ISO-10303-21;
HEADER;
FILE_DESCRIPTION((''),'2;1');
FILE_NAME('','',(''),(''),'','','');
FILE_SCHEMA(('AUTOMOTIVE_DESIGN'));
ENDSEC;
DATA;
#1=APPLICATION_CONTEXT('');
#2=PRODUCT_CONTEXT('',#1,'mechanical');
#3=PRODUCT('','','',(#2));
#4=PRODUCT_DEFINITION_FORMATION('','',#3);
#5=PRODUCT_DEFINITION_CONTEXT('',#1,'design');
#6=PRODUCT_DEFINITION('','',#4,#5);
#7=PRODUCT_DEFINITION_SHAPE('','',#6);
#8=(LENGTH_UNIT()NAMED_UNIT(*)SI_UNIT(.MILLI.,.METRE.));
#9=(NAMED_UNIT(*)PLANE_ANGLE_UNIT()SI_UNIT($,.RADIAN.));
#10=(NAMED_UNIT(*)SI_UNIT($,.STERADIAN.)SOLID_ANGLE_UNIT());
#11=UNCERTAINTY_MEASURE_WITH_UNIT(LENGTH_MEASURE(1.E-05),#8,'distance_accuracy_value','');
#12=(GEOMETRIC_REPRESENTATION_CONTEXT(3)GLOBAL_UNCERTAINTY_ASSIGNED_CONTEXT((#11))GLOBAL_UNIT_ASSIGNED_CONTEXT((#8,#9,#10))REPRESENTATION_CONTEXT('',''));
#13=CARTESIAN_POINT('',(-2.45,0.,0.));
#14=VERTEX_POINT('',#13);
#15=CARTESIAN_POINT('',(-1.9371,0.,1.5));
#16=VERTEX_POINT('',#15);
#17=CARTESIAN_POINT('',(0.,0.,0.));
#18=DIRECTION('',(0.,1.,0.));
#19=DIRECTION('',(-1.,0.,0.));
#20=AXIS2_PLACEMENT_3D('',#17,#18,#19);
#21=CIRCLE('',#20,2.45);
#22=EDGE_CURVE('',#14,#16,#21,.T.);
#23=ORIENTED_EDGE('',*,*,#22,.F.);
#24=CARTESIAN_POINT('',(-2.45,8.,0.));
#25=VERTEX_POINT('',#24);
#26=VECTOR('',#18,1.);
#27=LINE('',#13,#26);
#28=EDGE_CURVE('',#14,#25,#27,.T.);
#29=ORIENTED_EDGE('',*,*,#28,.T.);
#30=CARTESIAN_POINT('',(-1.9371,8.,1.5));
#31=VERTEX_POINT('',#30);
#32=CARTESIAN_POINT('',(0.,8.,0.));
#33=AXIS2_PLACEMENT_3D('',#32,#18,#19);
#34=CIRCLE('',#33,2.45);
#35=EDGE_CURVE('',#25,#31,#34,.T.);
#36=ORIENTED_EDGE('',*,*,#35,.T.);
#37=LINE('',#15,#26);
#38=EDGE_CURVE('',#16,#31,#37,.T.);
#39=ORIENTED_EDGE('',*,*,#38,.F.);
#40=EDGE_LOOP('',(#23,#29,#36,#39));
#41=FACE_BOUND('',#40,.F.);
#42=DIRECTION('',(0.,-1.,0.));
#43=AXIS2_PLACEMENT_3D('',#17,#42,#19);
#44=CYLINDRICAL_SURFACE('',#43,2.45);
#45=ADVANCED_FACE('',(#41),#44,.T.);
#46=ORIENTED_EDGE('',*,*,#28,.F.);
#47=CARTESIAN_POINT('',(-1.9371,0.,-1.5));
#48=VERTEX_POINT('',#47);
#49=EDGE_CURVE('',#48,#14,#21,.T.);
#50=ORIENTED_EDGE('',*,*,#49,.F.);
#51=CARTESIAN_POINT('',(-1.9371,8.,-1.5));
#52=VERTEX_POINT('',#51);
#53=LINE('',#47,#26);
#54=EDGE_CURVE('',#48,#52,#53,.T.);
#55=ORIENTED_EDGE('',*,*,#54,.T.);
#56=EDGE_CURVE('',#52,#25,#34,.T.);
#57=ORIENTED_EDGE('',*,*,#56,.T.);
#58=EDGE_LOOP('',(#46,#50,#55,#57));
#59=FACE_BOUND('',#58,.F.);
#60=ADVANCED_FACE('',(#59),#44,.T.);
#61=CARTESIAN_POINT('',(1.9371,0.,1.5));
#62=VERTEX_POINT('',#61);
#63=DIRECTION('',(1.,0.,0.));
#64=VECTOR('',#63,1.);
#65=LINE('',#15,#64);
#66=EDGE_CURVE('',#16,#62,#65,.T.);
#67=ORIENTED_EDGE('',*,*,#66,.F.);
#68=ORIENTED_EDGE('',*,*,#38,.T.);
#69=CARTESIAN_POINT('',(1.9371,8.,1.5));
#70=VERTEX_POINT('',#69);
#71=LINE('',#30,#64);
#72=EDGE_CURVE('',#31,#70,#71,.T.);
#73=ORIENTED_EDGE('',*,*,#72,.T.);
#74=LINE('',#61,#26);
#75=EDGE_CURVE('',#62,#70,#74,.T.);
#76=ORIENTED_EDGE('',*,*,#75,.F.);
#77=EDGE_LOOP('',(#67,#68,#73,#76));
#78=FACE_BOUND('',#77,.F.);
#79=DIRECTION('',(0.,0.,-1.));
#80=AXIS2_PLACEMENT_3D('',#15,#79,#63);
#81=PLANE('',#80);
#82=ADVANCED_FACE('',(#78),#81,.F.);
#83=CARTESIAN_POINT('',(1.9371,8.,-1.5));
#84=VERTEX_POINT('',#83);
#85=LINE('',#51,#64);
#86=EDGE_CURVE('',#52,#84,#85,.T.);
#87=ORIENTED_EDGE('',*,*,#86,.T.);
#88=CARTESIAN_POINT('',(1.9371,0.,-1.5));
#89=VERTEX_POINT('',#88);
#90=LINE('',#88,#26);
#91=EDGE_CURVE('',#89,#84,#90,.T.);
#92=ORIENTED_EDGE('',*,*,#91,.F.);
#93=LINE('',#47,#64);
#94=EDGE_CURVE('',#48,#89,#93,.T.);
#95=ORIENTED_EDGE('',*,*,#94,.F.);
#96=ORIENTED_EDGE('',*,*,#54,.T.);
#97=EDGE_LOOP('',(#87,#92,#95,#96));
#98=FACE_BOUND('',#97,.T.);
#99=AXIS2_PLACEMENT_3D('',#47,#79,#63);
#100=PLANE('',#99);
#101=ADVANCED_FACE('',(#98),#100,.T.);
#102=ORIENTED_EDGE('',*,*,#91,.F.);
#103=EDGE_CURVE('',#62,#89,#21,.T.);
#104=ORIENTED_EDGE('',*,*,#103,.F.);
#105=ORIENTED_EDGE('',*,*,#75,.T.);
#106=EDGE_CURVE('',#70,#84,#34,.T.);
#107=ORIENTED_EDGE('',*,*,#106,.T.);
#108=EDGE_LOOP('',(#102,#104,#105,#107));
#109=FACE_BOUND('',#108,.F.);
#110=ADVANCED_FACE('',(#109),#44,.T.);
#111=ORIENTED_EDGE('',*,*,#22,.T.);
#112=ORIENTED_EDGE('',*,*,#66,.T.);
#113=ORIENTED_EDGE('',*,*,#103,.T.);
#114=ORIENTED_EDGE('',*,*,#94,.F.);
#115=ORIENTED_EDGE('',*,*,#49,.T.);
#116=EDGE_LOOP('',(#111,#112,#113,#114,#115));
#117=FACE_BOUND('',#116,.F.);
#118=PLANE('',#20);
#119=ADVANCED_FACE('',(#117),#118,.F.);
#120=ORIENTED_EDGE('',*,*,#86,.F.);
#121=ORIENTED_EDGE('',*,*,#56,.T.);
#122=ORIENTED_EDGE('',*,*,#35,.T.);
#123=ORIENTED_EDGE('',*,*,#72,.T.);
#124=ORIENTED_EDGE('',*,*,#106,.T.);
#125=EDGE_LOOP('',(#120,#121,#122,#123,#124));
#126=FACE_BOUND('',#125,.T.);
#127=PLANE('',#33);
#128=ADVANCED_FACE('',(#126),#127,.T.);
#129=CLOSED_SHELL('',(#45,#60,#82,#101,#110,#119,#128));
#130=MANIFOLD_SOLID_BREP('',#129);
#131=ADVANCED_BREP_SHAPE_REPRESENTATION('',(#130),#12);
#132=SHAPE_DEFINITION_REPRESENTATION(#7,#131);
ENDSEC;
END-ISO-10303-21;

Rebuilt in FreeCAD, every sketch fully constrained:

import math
import FreeCAD as App
import Part
import Sketcher

doc = App.newDocument("Part")
params = doc.addObject("Spreadsheet::Sheet", "Params")
for row, (alias, value) in enumerate([
    ("sketch1_radius", "2.45 mm"),
    ("pad1_length", "8 mm"),
], start=1):
    params.set(f"A{row}", alias)
    params.set(f"B{row}", "=" + value)
    params.setAlias(f"B{row}", alias)

body = doc.addObject("PartDesign::Body", "Body")

sketch1 = body.newObject("Sketcher::SketchObject", "Sketch")
sketch1.AttachmentSupport = (doc.getObject("XZ_Plane"), [""])
sketch1.MapMode = "FlatFace"
sketch1.addGeometry(Part.ArcOfCircle(Part.Circle(App.Vector(0, 0, 0), App.Vector(0, 0, 1), 2.5), math.radians(142), math.radians(218)), False)
sketch1.addGeometry(Part.LineSegment(App.Vector(-1.9, 1.5, 0), App.Vector(1.9, 1.5, 0)), False)
sketch1.addGeometry(Part.ArcOfCircle(Part.Circle(App.Vector(0, 0, 0), App.Vector(0, 0, 1), 2.5), math.radians(-38), math.radians(38)), False)
sketch1.addGeometry(Part.LineSegment(App.Vector(1.9, -1.5, 0), App.Vector(-1.9, -1.5, 0)), False)
sketch1.addConstraint(Sketcher.Constraint("Coincident", 0, 1, 1, 1))
sketch1.addConstraint(Sketcher.Constraint("Coincident", 1, 2, 2, 2))
sketch1.addConstraint(Sketcher.Constraint("Coincident", 2, 1, 3, 1))
sketch1.addConstraint(Sketcher.Constraint("Coincident", 3, 2, 0, 2))
sketch1.addConstraint(Sketcher.Constraint("Horizontal", 1))
sketch1.addConstraint(Sketcher.Constraint("Horizontal", 3))
sketch1.addConstraint(Sketcher.Constraint("Coincident", 0, 3, -1, 1))
sketch1.addConstraint(Sketcher.Constraint("Coincident", 2, 3, -1, 1))
sketch1.addConstraint(Sketcher.Constraint("Equal", 0, 2))
sketch1.addConstraint(Sketcher.Constraint("Vertical", 1, 2, 2, 1))
sketch1.addConstraint(Sketcher.Constraint("Radius", 0, 2.45))
sketch1.addConstraint(Sketcher.Constraint("DistanceY", 2, 1, 1, 2, 3.0))
sketch1.setExpression("Constraints[10]", "Params.sketch1_radius")
pad1 = body.newObject("PartDesign::Pad", "Pad")
pad1.Profile = sketch1
pad1.setExpression("Length", "Params.pad1_length")
pad1.Reversed = True

doc.recompute()
